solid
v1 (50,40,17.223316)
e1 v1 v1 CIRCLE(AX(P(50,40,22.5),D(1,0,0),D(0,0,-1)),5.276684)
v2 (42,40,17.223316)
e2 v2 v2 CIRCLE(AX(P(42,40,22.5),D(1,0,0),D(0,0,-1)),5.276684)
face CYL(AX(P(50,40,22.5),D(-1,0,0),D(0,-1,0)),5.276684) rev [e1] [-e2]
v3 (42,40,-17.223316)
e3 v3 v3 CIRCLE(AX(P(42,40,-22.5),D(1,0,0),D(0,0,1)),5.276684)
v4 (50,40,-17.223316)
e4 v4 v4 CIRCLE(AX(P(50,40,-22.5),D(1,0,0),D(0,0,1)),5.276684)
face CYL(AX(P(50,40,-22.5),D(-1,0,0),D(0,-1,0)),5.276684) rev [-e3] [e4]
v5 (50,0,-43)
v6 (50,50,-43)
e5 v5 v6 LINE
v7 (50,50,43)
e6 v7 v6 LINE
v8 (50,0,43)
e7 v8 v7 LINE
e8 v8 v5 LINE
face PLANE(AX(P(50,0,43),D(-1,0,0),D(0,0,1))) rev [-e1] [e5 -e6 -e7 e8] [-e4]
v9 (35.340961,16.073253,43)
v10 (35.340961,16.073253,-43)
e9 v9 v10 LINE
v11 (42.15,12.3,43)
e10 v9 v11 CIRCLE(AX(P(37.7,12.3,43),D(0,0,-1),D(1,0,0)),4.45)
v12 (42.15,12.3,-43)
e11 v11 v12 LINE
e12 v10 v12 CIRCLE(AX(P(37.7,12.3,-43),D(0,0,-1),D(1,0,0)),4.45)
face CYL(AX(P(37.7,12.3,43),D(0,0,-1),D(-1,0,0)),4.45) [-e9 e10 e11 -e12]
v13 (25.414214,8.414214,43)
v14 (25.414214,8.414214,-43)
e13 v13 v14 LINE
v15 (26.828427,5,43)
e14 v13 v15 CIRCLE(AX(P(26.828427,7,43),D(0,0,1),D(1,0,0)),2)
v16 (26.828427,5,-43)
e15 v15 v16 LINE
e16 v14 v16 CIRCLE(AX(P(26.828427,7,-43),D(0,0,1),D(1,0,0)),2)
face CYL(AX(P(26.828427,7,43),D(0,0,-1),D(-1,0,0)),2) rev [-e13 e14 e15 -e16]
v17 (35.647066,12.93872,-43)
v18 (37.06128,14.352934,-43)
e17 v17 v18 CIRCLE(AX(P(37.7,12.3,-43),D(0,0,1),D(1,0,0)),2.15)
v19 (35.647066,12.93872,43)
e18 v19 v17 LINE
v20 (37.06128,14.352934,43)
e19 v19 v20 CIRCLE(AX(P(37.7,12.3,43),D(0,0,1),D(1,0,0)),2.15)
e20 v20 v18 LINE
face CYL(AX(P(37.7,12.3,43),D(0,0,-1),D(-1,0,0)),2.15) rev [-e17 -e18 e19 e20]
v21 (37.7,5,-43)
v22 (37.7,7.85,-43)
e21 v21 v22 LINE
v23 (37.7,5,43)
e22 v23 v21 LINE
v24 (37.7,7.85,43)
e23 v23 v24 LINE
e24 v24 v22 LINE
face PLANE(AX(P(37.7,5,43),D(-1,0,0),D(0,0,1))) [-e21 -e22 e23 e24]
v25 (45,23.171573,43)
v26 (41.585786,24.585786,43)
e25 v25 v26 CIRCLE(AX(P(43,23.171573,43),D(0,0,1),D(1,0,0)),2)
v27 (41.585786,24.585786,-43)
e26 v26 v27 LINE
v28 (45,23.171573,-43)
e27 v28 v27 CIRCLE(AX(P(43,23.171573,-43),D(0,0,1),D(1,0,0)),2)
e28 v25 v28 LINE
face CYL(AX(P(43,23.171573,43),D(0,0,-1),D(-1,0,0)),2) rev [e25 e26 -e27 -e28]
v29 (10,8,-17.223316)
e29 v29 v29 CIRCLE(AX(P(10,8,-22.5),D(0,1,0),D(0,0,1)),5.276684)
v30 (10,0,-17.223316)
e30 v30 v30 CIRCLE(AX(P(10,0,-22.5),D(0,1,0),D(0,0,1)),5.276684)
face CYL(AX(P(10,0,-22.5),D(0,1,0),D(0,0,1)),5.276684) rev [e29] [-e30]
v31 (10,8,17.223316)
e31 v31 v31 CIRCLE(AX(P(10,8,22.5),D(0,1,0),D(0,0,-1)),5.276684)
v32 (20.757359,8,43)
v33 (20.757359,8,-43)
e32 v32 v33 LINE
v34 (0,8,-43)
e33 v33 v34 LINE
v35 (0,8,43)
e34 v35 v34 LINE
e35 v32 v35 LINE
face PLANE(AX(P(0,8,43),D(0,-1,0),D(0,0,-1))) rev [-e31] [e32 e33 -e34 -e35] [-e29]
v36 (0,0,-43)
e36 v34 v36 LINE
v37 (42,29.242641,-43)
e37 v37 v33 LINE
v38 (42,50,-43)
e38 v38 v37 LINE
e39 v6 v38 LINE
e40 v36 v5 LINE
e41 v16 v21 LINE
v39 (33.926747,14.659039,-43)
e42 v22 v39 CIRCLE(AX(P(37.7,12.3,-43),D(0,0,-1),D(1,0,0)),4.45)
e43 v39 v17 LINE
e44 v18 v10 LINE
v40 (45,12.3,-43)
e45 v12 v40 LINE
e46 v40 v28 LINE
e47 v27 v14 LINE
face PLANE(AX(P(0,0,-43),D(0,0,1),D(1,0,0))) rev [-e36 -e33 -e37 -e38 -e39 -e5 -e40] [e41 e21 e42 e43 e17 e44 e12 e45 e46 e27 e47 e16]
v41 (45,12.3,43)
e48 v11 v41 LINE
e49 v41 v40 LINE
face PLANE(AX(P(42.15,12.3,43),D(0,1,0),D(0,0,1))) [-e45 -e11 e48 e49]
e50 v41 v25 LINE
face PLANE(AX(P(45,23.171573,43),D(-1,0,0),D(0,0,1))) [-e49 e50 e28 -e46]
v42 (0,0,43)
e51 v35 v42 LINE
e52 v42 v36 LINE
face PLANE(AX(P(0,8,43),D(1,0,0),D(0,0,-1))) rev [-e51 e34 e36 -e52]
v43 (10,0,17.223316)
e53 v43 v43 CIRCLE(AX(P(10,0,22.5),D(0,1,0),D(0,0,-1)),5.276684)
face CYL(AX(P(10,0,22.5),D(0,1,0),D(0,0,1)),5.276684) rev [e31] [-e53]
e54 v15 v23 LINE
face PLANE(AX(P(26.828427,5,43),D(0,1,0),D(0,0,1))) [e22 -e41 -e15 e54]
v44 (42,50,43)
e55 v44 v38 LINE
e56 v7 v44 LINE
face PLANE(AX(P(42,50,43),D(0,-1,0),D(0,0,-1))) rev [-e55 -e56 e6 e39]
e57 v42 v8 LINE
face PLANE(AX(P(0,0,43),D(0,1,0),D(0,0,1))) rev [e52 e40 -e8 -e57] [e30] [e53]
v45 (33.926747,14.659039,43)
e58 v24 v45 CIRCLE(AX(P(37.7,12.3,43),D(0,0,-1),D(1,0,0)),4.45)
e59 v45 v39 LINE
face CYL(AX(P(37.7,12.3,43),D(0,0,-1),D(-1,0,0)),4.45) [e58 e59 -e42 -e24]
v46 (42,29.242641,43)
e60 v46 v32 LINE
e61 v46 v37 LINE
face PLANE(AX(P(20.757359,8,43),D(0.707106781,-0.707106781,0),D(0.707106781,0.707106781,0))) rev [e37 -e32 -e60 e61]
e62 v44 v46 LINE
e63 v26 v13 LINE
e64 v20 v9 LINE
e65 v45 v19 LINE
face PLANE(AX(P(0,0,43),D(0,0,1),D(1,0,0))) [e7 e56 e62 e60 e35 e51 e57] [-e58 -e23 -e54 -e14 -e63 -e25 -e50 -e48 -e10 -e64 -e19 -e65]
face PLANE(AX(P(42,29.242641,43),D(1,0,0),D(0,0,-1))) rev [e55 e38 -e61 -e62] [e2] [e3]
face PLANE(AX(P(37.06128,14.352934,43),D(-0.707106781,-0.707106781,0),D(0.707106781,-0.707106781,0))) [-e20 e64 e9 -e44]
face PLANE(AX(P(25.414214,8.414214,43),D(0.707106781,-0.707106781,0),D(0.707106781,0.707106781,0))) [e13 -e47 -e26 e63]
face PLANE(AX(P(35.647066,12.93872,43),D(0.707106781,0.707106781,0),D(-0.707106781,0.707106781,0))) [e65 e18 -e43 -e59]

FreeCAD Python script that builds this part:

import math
import FreeCAD as App
import Part
import Sketcher
from FreeCAD import Vector
Q = App.Units.Quantity


def add_polygon(sketch, points):
    """Adds a closed chain of lines whose ends are joined by coincident constraints."""
    first, n = sketch.GeometryCount, len(points)
    for a, b in zip(points, points[1:] + points[:1]):
        sketch.addGeometry(Part.LineSegment(App.Vector(*a, 0), App.Vector(*b, 0)), False)
    for i in range(n):
        sketch.addConstraint(Sketcher.Constraint("Coincident", first + i, 2, first + (i + 1) % n, 1))

doc = App.newDocument("Part")
body = doc.addObject("PartDesign::Body", "Body")

# Sketch on XY plane
sketch1 = doc.addObject("Sketcher::SketchObject", "Sketch")
body.addObject(sketch1)
sketch1.AttachmentSupport = (doc.XY_Plane, [""])
sketch1.MapMode = "FlatFace"
add_polygon(sketch1, [(0, 0), (50, 0), (50, 50), (42, 50), (42, 29.2), (20.8, 8), (0, 8)])  # lines 0-6
sketch1.addGeometry(Part.LineSegment(Vector(35.3, 16.1, 0), Vector(37.1, 14.4, 0)), False)  # 7
sketch1.addGeometry(Part.ArcOfCircle(Part.Circle(Vector(37.7, 12.3, 0), Vector(0, 0, 1), 2.1), math.radians(163), math.radians(467)), False)  # 8
sketch1.addGeometry(Part.LineSegment(Vector(35.6, 12.9, 0), Vector(33.9, 14.7, 0)), False)  # 9
sketch1.addGeometry(Part.ArcOfCircle(Part.Circle(Vector(37.7, 12.3, 0), Vector(0, 0, 1), 4.5), math.radians(148), math.radians(270)), False)  # 10
sketch1.addGeometry(Part.LineSegment(Vector(37.7, 7.8, 0), Vector(37.7, 5, 0)), False)  # 11
sketch1.addGeometry(Part.LineSegment(Vector(37.7, 5, 0), Vector(26.8, 5, 0)), False)  # 12
sketch1.addGeometry(Part.ArcOfCircle(Part.Circle(Vector(26.8, 7, 0), Vector(0, 0, 1), 2), math.radians(135), math.radians(270)), False)  # 13
sketch1.addGeometry(Part.LineSegment(Vector(25.4, 8.4, 0), Vector(41.6, 24.6, 0)), False)  # 14
sketch1.addGeometry(Part.ArcOfCircle(Part.Circle(Vector(43, 23.2, 0), Vector(0, 0, 1), 2), math.radians(0), math.radians(135)), False)  # 15
sketch1.addGeometry(Part.LineSegment(Vector(45, 23.2, 0), Vector(45, 12.3, 0)), False)  # 16
sketch1.addGeometry(Part.LineSegment(Vector(45, 12.3, 0), Vector(42.1, 12.3, 0)), False)  # 17
sketch1.addGeometry(Part.ArcOfCircle(Part.Circle(Vector(37.7, 12.3, 0), Vector(0, 0, 1), 4.5), math.radians(0), math.radians(122)), False)  # 18
sketch1.addConstraint([
    Sketcher.Constraint("Coincident", 7, 2, 8, 2),
    Sketcher.Constraint("Coincident", 8, 1, 9, 1),
    Sketcher.Constraint("Coincident", 9, 2, 10, 1),
    Sketcher.Constraint("Coincident", 10, 2, 11, 1),
    Sketcher.Constraint("Coincident", 11, 2, 12, 1),
    Sketcher.Constraint("Tangent", 12, 2, 13, 2),
    Sketcher.Constraint("Tangent", 13, 1, 14, 1),
    Sketcher.Constraint("Tangent", 14, 2, 15, 2),
    Sketcher.Constraint("Tangent", 15, 1, 16, 1),
    Sketcher.Constraint("Coincident", 16, 2, 17, 1),
    Sketcher.Constraint("Coincident", 17, 2, 18, 1),
    Sketcher.Constraint("Coincident", 18, 2, 7, 1),
    Sketcher.Constraint("Horizontal", 0),
    Sketcher.Constraint("Vertical", 1),
    Sketcher.Constraint("Horizontal", 2),
    Sketcher.Constraint("Vertical", 3),
    Sketcher.Constraint("Horizontal", 5),
    Sketcher.Constraint("Vertical", 6),
    Sketcher.Constraint("Vertical", 11),
    Sketcher.Constraint("Horizontal", 12),
    Sketcher.Constraint("Vertical", 16),
    Sketcher.Constraint("Horizontal", 17),
    Sketcher.Constraint("Coincident", 6, 2, -1, 1),
    Sketcher.Constraint("Coincident", 10, 3, 8, 3),
    Sketcher.Constraint("Coincident", 18, 3, 8, 3),
    Sketcher.Constraint("Equal", 13, 15),
    Sketcher.Constraint("Equal", 10, 18),
    Sketcher.Constraint("Perpendicular", 4, 7),
    Sketcher.Constraint("Parallel", 7, 9),
    Sketcher.Constraint("Perpendicular", 9, 14),
    Sketcher.Constraint("Horizontal", 18, 3, 16, 2),
    Sketcher.Constraint("Vertical", 18, 3, 10, 2),
    Sketcher.Constraint("Equal", 0, 1),
    Sketcher.Constraint("Equal", 5, 3),
    Sketcher.Constraint("Equal", 2, 6),
    Sketcher.Constraint("Equal", 17, 11),
    Sketcher.Constraint("Equal", 7, 9),
    Sketcher.Constraint("Radius", 13, Q("2 mm")),
    Sketcher.Constraint("DistanceX", 0, 1, 0, 2, Q("50 mm")),
    Sketcher.Constraint("DistanceX", 2, 2, 2, 1, Q("8 mm")),
    Sketcher.Constraint("Radius", 8, Q("2.15 mm")),
    Sketcher.Constraint("Radius", 10, Q("4.45 mm")),
    Sketcher.Constraint("DistanceY", -1, 1, 13, 3, Q("7 mm")),
    Sketcher.Constraint("DistanceX", -1, 1, 15, 3, Q("43 mm")),
    Sketcher.Constraint("DistanceX", 17, 2, 17, 1, Q("2.85 mm")),
    Sketcher.Constraint("Distance", 7, Q("2.432898 mm")),
    Sketcher.Constraint("DistanceX", 5, 2, 5, 1, Q("20.757359 mm")),
    Sketcher.Constraint("DistanceX", 12, 2, 12, 1, Q("10.871573 mm")),
])
pad1 = doc.addObject("PartDesign::Pad", "Pad")
body.addObject(pad1)
pad1.Profile = sketch1
pad1.Length = 86
pad1.Midplane = True

# Sketch on XZ plane
sketch2 = doc.addObject("Sketcher::SketchObject", "Sketch001")
body.addObject(sketch2)
sketch2.AttachmentSupport = (doc.XZ_Plane, [""])
sketch2.MapMode = "FlatFace"
sketch2.AttachmentOffset = App.Placement(Vector(0, 0, -8), App.Rotation())
sketch2.addGeometry([
    Part.Circle(Vector(10, -22, 0), Vector(0, 0, 1), 5),
    Part.Circle(Vector(10, 22, 0), Vector(0, 0, 1), 5),
], False)
sketch2.addConstraint([
    Sketcher.Constraint("Equal", 0, 1),
    Sketcher.Constraint("Symmetric", 0, 3, 1, 3, -1),
    Sketcher.Constraint("DistanceX", -1, 1, 0, 3, Q("10 mm")),
    Sketcher.Constraint("DistanceY", 0, 3, 1, 3, Q("45 mm")),
    Sketcher.Constraint("Diameter", 0, Q("10.553369 mm")),
])
pocket1 = doc.addObject("PartDesign::Pocket", "Pocket")
body.addObject(pocket1)
pocket1.Profile = sketch2
pocket1.Type = "ThroughAll"
pocket1.Reversed = True
doc.recompute()

datumplane = doc.addObject("PartDesign::Plane", "DatumPlane")
body.addObject(datumplane)
datumplane.Placement = App.Placement(Vector(25, 25, 0), App.Rotation(Vector(-0.707106781, 0.707106781, 0), Vector(0, 0, -1), Vector(-0.707106781, -0.707106781, 0), "ZXY"))
mirrored = doc.addObject("PartDesign::Mirrored", "Mirrored")
body.addObject(mirrored)
mirrored.Originals = [pocket1]
mirrored.MirrorPlane = (datumplane, [""])
body.Tip = mirrored

doc.recompute()
